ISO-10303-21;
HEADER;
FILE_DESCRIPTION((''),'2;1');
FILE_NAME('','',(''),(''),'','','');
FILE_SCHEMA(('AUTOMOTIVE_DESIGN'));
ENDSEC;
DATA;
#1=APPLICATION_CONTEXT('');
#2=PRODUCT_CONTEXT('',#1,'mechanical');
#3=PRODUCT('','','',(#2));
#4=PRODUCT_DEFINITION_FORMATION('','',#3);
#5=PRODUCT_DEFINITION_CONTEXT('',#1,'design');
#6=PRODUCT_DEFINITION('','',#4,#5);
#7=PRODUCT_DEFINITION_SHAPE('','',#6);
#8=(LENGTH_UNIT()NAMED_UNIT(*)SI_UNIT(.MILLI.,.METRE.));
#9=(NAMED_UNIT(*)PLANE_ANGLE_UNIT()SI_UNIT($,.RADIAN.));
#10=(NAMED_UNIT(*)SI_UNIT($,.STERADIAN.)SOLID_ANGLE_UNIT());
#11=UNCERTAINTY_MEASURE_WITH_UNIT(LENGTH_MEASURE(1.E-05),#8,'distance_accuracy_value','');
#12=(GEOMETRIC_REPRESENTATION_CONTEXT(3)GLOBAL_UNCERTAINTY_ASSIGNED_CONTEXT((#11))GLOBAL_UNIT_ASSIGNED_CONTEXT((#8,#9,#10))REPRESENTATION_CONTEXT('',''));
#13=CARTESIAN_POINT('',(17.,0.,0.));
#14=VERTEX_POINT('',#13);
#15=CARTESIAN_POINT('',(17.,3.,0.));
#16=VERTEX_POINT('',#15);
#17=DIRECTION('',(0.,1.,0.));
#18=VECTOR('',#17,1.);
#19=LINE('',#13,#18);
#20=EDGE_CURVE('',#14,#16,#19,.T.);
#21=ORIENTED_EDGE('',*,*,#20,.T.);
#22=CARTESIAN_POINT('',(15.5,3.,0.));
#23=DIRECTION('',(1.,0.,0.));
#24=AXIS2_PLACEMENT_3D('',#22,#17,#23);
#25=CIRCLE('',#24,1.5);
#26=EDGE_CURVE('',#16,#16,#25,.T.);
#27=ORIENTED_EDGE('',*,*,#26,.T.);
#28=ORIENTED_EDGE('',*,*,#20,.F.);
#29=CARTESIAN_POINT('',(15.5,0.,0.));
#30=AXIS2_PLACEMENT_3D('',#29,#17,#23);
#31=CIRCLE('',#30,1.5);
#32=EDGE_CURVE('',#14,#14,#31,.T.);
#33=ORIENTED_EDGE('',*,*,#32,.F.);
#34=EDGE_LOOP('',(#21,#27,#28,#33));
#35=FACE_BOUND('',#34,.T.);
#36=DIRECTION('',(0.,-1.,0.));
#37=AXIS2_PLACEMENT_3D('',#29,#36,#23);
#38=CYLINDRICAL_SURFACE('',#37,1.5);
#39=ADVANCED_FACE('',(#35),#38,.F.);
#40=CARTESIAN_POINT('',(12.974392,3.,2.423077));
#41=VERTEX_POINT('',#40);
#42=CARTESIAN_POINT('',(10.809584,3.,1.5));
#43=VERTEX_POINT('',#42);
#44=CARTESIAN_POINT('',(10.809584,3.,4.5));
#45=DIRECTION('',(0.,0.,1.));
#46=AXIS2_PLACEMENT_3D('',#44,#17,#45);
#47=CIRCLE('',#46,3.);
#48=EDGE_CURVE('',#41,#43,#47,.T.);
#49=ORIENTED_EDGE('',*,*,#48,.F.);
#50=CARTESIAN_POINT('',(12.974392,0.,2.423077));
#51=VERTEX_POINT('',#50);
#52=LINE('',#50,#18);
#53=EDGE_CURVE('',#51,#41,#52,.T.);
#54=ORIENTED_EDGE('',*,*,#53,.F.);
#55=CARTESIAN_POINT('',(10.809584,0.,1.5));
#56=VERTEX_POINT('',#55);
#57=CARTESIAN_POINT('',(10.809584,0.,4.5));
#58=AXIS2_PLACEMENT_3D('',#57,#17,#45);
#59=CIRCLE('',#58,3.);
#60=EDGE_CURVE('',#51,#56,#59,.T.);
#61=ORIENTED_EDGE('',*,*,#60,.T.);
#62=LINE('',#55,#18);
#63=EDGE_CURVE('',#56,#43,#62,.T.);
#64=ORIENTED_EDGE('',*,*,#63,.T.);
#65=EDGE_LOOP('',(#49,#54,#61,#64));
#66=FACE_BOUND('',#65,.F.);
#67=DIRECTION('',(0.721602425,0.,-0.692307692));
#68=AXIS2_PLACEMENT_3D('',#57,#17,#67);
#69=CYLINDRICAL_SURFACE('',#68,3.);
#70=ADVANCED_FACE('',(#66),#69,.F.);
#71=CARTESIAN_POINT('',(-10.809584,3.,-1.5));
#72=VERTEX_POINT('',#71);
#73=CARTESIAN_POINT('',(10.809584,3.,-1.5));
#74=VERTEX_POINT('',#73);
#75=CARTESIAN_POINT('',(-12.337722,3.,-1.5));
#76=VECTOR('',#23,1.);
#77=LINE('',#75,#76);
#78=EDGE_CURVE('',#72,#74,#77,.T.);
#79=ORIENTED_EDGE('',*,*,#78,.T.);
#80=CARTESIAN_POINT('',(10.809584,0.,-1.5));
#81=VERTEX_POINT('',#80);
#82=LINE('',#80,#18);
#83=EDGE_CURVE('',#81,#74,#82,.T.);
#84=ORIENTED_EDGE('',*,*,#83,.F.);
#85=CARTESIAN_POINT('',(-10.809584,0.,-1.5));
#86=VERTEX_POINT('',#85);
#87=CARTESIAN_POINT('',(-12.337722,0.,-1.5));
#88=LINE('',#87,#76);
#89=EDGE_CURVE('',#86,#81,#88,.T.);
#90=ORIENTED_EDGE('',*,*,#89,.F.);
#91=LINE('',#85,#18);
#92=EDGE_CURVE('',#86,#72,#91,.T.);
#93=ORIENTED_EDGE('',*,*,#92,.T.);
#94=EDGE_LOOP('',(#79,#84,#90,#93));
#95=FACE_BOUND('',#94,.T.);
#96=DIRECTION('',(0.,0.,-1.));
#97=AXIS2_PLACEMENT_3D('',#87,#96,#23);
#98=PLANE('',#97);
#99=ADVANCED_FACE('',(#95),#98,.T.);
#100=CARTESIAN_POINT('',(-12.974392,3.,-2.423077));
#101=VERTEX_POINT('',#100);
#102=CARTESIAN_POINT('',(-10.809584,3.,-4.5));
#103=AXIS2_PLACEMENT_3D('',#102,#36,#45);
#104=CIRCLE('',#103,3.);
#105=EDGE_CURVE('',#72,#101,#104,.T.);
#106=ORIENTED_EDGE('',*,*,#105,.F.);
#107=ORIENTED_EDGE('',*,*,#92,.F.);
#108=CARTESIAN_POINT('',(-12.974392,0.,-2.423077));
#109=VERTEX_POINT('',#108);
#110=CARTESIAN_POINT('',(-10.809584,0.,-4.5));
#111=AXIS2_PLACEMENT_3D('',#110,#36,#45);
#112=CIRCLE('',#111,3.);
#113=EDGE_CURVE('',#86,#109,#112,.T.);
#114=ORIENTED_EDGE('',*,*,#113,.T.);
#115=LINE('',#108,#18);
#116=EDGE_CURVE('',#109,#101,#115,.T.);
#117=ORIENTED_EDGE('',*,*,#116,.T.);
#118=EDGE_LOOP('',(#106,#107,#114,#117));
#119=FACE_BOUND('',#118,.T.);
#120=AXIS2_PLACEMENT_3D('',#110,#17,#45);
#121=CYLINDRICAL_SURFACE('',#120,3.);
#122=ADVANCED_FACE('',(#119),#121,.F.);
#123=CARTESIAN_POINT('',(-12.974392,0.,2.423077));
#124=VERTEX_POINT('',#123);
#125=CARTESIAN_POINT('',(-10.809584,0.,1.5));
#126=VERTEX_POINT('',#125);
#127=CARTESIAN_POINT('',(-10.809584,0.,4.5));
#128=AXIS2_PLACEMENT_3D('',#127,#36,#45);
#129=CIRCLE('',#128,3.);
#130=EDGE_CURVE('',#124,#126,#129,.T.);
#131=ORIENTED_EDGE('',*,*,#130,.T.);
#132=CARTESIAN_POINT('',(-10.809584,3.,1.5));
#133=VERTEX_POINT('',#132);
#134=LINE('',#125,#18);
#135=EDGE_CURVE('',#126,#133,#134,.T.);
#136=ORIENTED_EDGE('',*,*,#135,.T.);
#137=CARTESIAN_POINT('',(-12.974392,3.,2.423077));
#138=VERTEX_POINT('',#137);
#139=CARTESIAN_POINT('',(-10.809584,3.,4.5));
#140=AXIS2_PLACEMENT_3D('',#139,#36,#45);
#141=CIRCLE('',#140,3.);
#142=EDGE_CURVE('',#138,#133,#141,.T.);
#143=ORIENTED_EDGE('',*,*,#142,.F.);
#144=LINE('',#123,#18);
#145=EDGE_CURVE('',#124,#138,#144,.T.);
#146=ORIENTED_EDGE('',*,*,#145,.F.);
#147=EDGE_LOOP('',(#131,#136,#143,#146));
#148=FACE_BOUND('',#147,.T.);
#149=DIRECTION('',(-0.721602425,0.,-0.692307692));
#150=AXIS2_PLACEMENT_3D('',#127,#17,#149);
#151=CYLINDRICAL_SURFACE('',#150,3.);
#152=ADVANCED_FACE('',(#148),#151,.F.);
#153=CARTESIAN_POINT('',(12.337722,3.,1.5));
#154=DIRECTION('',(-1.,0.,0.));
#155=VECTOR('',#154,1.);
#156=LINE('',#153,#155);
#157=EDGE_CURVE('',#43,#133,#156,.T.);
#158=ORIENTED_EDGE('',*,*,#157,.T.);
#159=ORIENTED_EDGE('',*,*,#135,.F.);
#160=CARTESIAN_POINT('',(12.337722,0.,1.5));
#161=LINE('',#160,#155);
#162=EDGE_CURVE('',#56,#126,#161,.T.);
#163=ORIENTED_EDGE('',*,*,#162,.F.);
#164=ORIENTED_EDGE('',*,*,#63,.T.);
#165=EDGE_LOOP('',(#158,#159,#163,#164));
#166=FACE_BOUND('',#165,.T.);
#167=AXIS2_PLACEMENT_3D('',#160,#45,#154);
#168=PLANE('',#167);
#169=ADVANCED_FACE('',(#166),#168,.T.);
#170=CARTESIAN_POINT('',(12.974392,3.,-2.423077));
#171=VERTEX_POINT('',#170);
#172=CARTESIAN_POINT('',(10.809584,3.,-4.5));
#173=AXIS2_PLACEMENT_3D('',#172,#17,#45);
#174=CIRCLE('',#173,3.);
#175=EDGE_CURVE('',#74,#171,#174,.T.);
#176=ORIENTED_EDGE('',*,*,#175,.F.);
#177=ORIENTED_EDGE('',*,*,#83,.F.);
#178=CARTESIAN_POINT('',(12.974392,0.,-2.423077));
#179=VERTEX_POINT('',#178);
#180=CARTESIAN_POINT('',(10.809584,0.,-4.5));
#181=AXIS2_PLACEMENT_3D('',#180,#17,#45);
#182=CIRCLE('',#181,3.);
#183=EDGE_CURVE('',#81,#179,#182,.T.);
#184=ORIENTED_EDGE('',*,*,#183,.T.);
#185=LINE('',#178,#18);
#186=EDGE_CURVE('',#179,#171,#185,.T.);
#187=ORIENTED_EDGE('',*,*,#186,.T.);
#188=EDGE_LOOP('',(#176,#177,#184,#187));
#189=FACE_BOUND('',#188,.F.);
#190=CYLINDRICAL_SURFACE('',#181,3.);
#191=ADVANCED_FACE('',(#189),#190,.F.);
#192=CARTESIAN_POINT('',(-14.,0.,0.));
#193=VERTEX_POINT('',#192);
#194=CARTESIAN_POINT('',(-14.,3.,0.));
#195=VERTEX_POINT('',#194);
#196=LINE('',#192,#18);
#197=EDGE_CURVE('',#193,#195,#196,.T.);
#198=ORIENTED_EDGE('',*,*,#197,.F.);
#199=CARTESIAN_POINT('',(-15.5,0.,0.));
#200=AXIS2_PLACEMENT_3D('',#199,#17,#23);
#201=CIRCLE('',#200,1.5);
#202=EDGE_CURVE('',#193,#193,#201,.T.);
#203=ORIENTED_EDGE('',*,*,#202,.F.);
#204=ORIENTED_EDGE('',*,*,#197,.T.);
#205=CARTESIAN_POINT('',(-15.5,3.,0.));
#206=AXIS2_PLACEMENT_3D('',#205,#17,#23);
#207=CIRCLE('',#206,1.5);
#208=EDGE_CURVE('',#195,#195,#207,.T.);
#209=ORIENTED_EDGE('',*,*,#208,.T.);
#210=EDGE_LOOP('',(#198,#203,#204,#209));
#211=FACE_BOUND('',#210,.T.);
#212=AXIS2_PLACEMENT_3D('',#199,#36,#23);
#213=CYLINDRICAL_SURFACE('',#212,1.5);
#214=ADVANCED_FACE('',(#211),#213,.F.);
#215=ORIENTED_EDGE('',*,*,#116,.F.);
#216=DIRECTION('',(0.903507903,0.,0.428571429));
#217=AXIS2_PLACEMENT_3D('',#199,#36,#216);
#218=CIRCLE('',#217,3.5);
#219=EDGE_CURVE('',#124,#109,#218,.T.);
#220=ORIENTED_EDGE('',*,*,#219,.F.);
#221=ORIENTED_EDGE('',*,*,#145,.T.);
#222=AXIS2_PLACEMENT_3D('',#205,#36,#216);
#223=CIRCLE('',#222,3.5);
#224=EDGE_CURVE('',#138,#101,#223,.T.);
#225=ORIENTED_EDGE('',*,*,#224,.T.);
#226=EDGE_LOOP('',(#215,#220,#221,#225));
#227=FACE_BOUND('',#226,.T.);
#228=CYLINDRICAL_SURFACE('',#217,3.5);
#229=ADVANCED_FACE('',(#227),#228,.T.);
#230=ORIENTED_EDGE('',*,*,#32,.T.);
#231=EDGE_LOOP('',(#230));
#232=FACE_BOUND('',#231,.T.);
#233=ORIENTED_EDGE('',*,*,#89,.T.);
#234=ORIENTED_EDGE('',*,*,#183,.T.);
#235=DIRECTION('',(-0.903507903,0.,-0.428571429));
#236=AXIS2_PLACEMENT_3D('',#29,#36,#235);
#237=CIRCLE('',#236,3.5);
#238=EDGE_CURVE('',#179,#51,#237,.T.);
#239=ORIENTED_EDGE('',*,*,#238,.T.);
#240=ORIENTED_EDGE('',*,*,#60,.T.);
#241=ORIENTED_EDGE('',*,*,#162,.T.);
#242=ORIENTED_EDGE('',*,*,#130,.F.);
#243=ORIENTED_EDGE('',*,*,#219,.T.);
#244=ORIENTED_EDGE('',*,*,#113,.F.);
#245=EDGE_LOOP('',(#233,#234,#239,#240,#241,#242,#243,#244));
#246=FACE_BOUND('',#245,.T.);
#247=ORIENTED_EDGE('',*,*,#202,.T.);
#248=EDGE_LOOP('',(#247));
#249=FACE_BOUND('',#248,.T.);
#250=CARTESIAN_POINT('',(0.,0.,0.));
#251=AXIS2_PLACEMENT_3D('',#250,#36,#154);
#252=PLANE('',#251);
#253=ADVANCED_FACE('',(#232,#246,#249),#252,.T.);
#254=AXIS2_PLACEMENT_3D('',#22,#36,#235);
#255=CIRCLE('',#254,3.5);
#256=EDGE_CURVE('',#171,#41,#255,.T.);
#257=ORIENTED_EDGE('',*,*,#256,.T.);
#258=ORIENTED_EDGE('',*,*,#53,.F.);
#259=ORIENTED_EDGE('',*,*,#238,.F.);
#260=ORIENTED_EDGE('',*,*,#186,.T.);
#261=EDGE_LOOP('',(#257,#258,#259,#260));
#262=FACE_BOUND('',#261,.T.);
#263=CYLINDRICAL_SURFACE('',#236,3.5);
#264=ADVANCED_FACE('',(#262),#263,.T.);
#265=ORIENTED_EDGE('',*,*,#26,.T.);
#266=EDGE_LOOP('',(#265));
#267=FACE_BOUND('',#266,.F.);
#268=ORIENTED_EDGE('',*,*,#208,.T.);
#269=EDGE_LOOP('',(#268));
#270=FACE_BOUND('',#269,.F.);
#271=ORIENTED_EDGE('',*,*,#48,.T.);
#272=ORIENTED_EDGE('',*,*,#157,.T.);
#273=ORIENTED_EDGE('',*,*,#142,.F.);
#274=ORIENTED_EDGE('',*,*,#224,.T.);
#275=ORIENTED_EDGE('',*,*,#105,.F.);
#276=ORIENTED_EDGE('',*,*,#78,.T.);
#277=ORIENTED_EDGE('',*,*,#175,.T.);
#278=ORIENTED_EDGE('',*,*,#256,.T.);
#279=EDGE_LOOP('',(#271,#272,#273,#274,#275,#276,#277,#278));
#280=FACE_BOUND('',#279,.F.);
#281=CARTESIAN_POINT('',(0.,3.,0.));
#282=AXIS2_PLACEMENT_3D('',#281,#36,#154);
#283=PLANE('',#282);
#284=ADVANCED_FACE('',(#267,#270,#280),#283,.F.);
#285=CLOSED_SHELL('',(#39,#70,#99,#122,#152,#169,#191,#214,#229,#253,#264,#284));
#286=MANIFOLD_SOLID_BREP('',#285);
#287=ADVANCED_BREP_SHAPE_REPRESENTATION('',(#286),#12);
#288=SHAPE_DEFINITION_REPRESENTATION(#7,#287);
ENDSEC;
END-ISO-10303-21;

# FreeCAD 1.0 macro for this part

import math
import FreeCAD as App
import Part
import Sketcher
from FreeCAD import Vector


def edges_at(feature, points):
    """Names of the edges that pass closest to the given points."""
    edges = feature.Shape.Edges
    near = lambda p: min(range(len(edges)), key=lambda i: edges[i].distToShape(Part.Vertex(*p))[0])
    return sorted({f"Edge{near(p) + 1}" for p in points})

doc = App.newDocument("Part")
body = doc.addObject("PartDesign::Body", "Body")

# Sketch on XZ plane
sketch1 = doc.addObject("Sketcher::SketchObject", "Sketch")
body.addObject(sketch1)
sketch1.AttachmentSupport = (doc.XZ_Plane, [""])
sketch1.MapMode = "FlatFace"
sketch1.addGeometry([
    Part.LineSegment(Vector(12.3, -1.5, 0), Vector(-12.3, -1.5, 0)),  # 0
    Part.ArcOfCircle(Part.Circle(Vector(-15.5, 0, 0), Vector(0, 0, 1), 3.5), math.radians(25), math.radians(335)),  # 1
    Part.LineSegment(Vector(-12.3, 1.5, 0), Vector(12.3, 1.5, 0)),  # 2
    Part.ArcOfCircle(Part.Circle(Vector(15.5, 0, 0), Vector(0, 0, 1), 3.5), math.radians(-155), math.radians(155)),  # 3
    Part.Circle(Vector(15.5, 0, 0), Vector(0, 0, 1), 1.5),  # 4
    Part.Circle(Vector(-15.5, 0, 0), Vector(0, 0, 1), 1.5),  # 5
], False)
sketch1.addConstraint([
    Sketcher.Constraint("Coincident", 0, 2, 1, 2),
    Sketcher.Constraint("Coincident", 1, 1, 2, 1),
    Sketcher.Constraint("Coincident", 2, 2, 3, 2),
    Sketcher.Constraint("Coincident", 3, 1, 0, 1),
    Sketcher.Constraint("Horizontal", 0),
    Sketcher.Constraint("Horizontal", 2),
    Sketcher.Constraint("Coincident", 4, 3, 3, 3),
    Sketcher.Constraint("Coincident", 5, 3, 1, 3),
    Sketcher.Constraint("Equal", 1, 3),
    Sketcher.Constraint("Equal", 4, 5),
    Sketcher.Constraint("Symmetric", 1, 3, 3, 3, -1, 1),
    Sketcher.Constraint("Symmetric", 0, 2, 1, 1, -1),
    Sketcher.Constraint("Diameter", 4, 3.0),
    Sketcher.Constraint("Radius", 1, 3.5),
    Sketcher.Constraint("DistanceX", 1, 3, 3, 3, 31.0),
    Sketcher.Constraint("DistanceY", 0, 2, 1, 1, 3.0),
])
pad1 = doc.addObject("PartDesign::Pad", "Pad")
body.addObject(pad1)
pad1.Profile = sketch1
pad1.Length = 3
pad1.Reversed = True
doc.recompute()

fillet = doc.addObject("PartDesign::Fillet", "Fillet")
body.addObject(fillet)
fillet.Base = (pad1, edges_at(pad1, [
    (-12.338, 1.5, -1.5),
    (12.338, 1.5, -1.5),
    (12.338, 1.5, 1.5),
    (-12.338, 1.5, 1.5),
]))
fillet.Radius = 3

doc.recompute()
